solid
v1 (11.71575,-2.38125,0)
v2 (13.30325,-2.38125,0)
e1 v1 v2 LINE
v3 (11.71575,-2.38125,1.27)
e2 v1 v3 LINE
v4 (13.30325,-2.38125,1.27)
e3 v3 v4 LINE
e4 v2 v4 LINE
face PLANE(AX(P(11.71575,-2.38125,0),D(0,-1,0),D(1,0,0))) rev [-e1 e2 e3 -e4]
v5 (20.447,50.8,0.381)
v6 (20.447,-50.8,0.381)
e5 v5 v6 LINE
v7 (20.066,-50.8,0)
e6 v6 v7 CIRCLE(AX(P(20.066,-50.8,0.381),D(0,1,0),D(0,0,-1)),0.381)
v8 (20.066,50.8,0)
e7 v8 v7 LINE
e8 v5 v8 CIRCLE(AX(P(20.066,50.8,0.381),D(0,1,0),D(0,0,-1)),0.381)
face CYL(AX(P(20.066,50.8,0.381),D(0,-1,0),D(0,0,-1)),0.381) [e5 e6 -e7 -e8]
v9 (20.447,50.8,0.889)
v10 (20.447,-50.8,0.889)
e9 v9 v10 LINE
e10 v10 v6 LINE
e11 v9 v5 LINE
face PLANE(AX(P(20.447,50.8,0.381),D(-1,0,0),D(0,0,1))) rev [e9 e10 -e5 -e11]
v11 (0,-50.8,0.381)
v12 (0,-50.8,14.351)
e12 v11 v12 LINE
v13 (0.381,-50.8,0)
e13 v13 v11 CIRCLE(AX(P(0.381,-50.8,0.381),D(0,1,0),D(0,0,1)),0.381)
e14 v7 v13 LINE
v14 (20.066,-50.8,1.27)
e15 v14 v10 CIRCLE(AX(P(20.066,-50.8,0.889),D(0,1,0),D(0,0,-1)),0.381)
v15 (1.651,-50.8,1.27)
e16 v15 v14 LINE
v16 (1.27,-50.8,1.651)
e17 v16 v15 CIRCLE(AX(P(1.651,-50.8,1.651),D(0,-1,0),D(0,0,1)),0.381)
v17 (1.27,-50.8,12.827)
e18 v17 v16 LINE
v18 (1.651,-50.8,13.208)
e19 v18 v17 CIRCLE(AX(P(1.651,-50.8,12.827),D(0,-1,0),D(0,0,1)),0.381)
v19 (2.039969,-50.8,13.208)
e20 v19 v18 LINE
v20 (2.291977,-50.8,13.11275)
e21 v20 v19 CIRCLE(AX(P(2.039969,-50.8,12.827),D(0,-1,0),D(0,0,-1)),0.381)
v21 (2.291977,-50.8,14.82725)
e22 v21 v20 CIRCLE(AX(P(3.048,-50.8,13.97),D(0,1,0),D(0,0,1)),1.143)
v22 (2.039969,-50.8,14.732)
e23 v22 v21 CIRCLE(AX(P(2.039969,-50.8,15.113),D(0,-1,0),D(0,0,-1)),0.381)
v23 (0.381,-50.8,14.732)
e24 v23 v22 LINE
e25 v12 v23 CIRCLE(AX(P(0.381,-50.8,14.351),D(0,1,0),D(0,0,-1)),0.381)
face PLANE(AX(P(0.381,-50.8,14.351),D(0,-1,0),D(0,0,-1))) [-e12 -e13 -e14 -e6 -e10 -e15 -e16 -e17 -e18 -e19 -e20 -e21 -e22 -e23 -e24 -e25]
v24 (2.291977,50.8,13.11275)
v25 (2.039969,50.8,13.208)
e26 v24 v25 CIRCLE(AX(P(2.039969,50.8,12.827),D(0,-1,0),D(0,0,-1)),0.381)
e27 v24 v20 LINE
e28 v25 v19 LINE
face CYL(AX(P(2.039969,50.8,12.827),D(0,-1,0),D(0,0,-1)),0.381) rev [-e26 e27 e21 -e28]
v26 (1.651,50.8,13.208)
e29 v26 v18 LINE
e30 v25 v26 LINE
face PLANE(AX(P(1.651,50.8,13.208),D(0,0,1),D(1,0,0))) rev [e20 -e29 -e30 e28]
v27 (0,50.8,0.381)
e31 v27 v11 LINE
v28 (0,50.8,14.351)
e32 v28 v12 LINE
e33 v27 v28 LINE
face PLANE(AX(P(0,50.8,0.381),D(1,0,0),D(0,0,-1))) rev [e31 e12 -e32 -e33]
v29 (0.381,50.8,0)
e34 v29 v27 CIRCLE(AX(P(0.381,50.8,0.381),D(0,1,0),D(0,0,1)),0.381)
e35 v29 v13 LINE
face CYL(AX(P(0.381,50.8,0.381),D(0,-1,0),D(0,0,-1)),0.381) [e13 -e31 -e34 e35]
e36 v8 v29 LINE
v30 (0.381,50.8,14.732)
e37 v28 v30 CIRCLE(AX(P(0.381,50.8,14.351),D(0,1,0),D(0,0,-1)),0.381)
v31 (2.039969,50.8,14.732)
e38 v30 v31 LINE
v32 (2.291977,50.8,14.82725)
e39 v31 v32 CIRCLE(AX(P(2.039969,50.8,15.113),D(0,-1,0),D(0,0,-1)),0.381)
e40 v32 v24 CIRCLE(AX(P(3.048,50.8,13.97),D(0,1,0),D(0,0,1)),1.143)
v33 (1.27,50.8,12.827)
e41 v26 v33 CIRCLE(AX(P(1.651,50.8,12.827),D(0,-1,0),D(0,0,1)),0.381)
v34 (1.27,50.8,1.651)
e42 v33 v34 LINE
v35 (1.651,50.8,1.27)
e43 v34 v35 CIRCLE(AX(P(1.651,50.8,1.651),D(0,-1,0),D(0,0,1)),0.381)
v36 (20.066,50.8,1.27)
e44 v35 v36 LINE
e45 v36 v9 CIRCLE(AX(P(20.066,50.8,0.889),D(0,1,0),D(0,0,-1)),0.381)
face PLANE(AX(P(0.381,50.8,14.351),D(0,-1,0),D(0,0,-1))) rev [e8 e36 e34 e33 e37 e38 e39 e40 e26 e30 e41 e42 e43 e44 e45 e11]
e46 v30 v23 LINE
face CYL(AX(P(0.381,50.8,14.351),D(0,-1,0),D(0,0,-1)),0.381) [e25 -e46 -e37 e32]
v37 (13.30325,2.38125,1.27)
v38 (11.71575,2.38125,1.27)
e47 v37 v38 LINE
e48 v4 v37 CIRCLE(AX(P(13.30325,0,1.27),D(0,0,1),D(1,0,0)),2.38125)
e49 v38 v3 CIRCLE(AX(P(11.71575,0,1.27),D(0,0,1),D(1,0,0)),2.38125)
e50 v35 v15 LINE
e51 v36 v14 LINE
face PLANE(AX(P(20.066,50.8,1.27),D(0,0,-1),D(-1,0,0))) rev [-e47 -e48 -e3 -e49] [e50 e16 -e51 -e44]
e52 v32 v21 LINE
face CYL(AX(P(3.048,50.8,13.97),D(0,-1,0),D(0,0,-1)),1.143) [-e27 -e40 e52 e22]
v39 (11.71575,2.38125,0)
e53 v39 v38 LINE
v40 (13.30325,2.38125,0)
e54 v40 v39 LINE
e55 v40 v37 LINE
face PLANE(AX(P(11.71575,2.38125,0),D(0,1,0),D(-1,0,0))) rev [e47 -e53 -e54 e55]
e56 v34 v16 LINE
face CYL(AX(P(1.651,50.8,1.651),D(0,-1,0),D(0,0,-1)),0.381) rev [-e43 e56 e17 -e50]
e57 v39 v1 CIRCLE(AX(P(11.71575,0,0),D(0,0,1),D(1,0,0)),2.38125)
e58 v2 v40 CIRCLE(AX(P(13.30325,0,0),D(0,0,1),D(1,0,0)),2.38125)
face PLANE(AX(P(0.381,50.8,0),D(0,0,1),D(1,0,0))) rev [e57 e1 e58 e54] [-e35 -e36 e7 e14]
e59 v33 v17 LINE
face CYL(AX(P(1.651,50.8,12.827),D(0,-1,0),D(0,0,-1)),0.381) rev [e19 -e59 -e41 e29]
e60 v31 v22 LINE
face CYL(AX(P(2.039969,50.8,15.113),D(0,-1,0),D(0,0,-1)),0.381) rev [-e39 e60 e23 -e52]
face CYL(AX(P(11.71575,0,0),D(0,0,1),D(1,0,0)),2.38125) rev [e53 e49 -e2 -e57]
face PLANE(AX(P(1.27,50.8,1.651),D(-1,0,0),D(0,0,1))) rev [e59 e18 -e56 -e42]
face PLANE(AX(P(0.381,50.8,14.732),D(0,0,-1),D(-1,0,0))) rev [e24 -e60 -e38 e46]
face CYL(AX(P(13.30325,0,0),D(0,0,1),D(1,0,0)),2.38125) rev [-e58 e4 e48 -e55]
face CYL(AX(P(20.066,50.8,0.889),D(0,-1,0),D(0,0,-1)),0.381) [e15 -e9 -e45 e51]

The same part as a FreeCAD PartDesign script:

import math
import FreeCAD as App
import Part
import Sketcher
Q = App.Units.Quantity

doc = App.newDocument("Part")
body = doc.addObject("PartDesign::Body", "Body")

# Sketch on XZ plane
sketch1 = body.newObject("Sketcher::SketchObject", "Sketch")
sketch1.AttachmentSupport = (doc.getObject("XZ_Plane"), [""])
sketch1.MapMode = "FlatFace"
sketch1.addGeometry([
    Part.LineSegment(App.Vector(20.07, 0, 0), App.Vector(0.38, 0, 0)),  # 0
    Part.ArcOfCircle(Part.Circle(App.Vector(0.38, 0.38, 0), App.Vector(0, 0, 1), 0.38), math.radians(180), math.radians(270)),  # 1
    Part.LineSegment(App.Vector(0, 0.38, 0), App.Vector(0, 14.35, 0)),  # 2
    Part.ArcOfCircle(Part.Circle(App.Vector(0.38, 14.35, 0), App.Vector(0, 0, 1), 0.38), math.radians(90), math.radians(180)),  # 3
    Part.LineSegment(App.Vector(0.38, 14.73, 0), App.Vector(2.04, 14.73, 0)),  # 4
    Part.ArcOfCircle(Part.Circle(App.Vector(2.04, 15.11, 0), App.Vector(0, 0, 1), 0.38), math.radians(-90), math.radians(-49)),  # 5
    Part.ArcOfCircle(Part.Circle(App.Vector(3.05, 13.97, 0), App.Vector(0, 0, 1), 1.14), math.radians(-131), math.radians(131)),  # 6
    Part.ArcOfCircle(Part.Circle(App.Vector(2.04, 12.83, 0), App.Vector(0, 0, 1), 0.38), math.radians(49), math.radians(90)),  # 7
    Part.LineSegment(App.Vector(2.04, 13.21, 0), App.Vector(1.65, 13.21, 0)),  # 8
    Part.ArcOfCircle(Part.Circle(App.Vector(1.65, 12.83, 0), App.Vector(0, 0, 1), 0.38), math.radians(90), math.radians(180)),  # 9
    Part.LineSegment(App.Vector(1.27, 12.83, 0), App.Vector(1.27, 1.65, 0)),  # 10
    Part.ArcOfCircle(Part.Circle(App.Vector(1.65, 1.65, 0), App.Vector(0, 0, 1), 0.38), math.radians(180), math.radians(270)),  # 11
    Part.LineSegment(App.Vector(1.65, 1.27, 0), App.Vector(20.07, 1.27, 0)),  # 12
    Part.ArcOfCircle(Part.Circle(App.Vector(20.07, 0.89, 0), App.Vector(0, 0, 1), 0.38), math.radians(0), math.radians(90)),  # 13
    Part.LineSegment(App.Vector(20.45, 0.89, 0), App.Vector(20.45, 0.38, 0)),  # 14
    Part.ArcOfCircle(Part.Circle(App.Vector(20.07, 0.38, 0), App.Vector(0, 0, 1), 0.38), math.radians(-90), math.radians(0)),  # 15
], False)
sketch1.addConstraint([
    Sketcher.Constraint("Tangent", 0, 2, 1, 2),
    Sketcher.Constraint("Tangent", 1, 1, 2, 1),
    Sketcher.Constraint("Tangent", 2, 2, 3, 2),
    Sketcher.Constraint("Tangent", 3, 1, 4, 1),
    Sketcher.Constraint("Tangent", 4, 2, 5, 1),
    Sketcher.Constraint("Tangent", 5, 2, 6, 2),
    Sketcher.Constraint("Tangent", 6, 1, 7, 1),
    Sketcher.Constraint("Tangent", 7, 2, 8, 1),
    Sketcher.Constraint("Tangent", 8, 2, 9, 1),
    Sketcher.Constraint("Tangent", 9, 2, 10, 1),
    Sketcher.Constraint("Tangent", 10, 2, 11, 1),
    Sketcher.Constraint("Tangent", 11, 2, 12, 1),
    Sketcher.Constraint("Tangent", 12, 2, 13, 2),
    Sketcher.Constraint("Tangent", 13, 1, 14, 1),
    Sketcher.Constraint("Tangent", 14, 2, 15, 2),
    Sketcher.Constraint("Tangent", 15, 1, 0, 1),
    Sketcher.Constraint("Horizontal", 0),
    Sketcher.Constraint("Vertical", 2),
    Sketcher.Constraint("Horizontal", 4),
    Sketcher.Constraint("Horizontal", 8),
    Sketcher.Constraint("Vertical", 10),
    Sketcher.Constraint("Horizontal", 12),
    Sketcher.Constraint("Vertical", 14),
    Sketcher.Constraint("Equal", 1, 3),
    Sketcher.Constraint("Equal", 3, 5),
    Sketcher.Constraint("Equal", 5, 7),
    Sketcher.Constraint("Equal", 7, 9),
    Sketcher.Constraint("Equal", 9, 11),
    Sketcher.Constraint("Equal", 11, 13),
    Sketcher.Constraint("Equal", 13, 15),
    Sketcher.Constraint("PointOnObject", 0, 2, -1),
    Sketcher.Constraint("PointOnObject", 1, 1, -2),
    Sketcher.Constraint("Vertical", 5, 3, 7, 3),
    Sketcher.Constraint("Radius", 1, Q("0.015 in")),
    Sketcher.Constraint("Radius", 6, Q("0.045 in")),
    Sketcher.Constraint("DistanceY", 2, 1, 2, 2, Q("0.55 in")),
    Sketcher.Constraint("DistanceY", 10, 2, 10, 1, Q("0.44 in")),
    Sketcher.Constraint("DistanceY", 14, 2, 14, 1, Q("0.02 in")),
    Sketcher.Constraint("DistanceX", 0, 2, 0, 1, Q("0.775 in")),
    Sketcher.Constraint("DistanceX", 12, 1, 12, 2, Q("0.725 in")),
    Sketcher.Constraint("DistanceX", -1, 1, 6, 3, Q("0.12 in")),
])
pad1 = body.newObject("PartDesign::Pad", "Pad")
pad1.Profile = sketch1
pad1.Length = Q("4 in")
pad1.Midplane = True

# Sketch on XY plane
sketch2 = body.newObject("Sketcher::SketchObject", "Sketch001")
sketch2.AttachmentSupport = (doc.getObject("XY_Plane"), [""])
sketch2.MapMode = "FlatFace"
sketch2.AttachmentOffset = App.Placement(App.Vector(0, 0, 0.05 * 25.4), App.Rotation())
sketch2.addGeometry([
    Part.LineSegment(App.Vector(13.3, 2.4, 0), App.Vector(11.7, 2.4, 0)),
    Part.ArcOfCircle(Part.Circle(App.Vector(11.7, 0, 0), App.Vector(0, 0, 1), 2.4), math.radians(90), math.radians(270)),
    Part.LineSegment(App.Vector(11.7, -2.4, 0), App.Vector(13.3, -2.4, 0)),
    Part.ArcOfCircle(Part.Circle(App.Vector(13.3, 0, 0), App.Vector(0, 0, 1), 2.4), math.radians(-90), math.radians(90)),
], False)
sketch2.addConstraint([
    Sketcher.Constraint("Tangent", 0, 2, 1, 1),
    Sketcher.Constraint("Tangent", 1, 2, 2, 1),
    Sketcher.Constraint("Tangent", 2, 2, 3, 1),
    Sketcher.Constraint("Tangent", 3, 2, 0, 1),
    Sketcher.Constraint("Horizontal", 0),
    Sketcher.Constraint("Horizontal", 2),
    Sketcher.Constraint("PointOnObject", 1, 3, -1),
    Sketcher.Constraint("Radius", 1, Q("0.09375 in")),
    Sketcher.Constraint("DistanceX", 0, 2, 0, 1, Q("0.0625 in")),
    Sketcher.Constraint("DistanceX", -1, 1, 1, 3, Q("11.71575 mm")),
])
pocket1 = body.newObject("PartDesign::Pocket", "Pocket")
pocket1.Profile = sketch2
pocket1.Type = "ThroughAll"

doc.recompute()
